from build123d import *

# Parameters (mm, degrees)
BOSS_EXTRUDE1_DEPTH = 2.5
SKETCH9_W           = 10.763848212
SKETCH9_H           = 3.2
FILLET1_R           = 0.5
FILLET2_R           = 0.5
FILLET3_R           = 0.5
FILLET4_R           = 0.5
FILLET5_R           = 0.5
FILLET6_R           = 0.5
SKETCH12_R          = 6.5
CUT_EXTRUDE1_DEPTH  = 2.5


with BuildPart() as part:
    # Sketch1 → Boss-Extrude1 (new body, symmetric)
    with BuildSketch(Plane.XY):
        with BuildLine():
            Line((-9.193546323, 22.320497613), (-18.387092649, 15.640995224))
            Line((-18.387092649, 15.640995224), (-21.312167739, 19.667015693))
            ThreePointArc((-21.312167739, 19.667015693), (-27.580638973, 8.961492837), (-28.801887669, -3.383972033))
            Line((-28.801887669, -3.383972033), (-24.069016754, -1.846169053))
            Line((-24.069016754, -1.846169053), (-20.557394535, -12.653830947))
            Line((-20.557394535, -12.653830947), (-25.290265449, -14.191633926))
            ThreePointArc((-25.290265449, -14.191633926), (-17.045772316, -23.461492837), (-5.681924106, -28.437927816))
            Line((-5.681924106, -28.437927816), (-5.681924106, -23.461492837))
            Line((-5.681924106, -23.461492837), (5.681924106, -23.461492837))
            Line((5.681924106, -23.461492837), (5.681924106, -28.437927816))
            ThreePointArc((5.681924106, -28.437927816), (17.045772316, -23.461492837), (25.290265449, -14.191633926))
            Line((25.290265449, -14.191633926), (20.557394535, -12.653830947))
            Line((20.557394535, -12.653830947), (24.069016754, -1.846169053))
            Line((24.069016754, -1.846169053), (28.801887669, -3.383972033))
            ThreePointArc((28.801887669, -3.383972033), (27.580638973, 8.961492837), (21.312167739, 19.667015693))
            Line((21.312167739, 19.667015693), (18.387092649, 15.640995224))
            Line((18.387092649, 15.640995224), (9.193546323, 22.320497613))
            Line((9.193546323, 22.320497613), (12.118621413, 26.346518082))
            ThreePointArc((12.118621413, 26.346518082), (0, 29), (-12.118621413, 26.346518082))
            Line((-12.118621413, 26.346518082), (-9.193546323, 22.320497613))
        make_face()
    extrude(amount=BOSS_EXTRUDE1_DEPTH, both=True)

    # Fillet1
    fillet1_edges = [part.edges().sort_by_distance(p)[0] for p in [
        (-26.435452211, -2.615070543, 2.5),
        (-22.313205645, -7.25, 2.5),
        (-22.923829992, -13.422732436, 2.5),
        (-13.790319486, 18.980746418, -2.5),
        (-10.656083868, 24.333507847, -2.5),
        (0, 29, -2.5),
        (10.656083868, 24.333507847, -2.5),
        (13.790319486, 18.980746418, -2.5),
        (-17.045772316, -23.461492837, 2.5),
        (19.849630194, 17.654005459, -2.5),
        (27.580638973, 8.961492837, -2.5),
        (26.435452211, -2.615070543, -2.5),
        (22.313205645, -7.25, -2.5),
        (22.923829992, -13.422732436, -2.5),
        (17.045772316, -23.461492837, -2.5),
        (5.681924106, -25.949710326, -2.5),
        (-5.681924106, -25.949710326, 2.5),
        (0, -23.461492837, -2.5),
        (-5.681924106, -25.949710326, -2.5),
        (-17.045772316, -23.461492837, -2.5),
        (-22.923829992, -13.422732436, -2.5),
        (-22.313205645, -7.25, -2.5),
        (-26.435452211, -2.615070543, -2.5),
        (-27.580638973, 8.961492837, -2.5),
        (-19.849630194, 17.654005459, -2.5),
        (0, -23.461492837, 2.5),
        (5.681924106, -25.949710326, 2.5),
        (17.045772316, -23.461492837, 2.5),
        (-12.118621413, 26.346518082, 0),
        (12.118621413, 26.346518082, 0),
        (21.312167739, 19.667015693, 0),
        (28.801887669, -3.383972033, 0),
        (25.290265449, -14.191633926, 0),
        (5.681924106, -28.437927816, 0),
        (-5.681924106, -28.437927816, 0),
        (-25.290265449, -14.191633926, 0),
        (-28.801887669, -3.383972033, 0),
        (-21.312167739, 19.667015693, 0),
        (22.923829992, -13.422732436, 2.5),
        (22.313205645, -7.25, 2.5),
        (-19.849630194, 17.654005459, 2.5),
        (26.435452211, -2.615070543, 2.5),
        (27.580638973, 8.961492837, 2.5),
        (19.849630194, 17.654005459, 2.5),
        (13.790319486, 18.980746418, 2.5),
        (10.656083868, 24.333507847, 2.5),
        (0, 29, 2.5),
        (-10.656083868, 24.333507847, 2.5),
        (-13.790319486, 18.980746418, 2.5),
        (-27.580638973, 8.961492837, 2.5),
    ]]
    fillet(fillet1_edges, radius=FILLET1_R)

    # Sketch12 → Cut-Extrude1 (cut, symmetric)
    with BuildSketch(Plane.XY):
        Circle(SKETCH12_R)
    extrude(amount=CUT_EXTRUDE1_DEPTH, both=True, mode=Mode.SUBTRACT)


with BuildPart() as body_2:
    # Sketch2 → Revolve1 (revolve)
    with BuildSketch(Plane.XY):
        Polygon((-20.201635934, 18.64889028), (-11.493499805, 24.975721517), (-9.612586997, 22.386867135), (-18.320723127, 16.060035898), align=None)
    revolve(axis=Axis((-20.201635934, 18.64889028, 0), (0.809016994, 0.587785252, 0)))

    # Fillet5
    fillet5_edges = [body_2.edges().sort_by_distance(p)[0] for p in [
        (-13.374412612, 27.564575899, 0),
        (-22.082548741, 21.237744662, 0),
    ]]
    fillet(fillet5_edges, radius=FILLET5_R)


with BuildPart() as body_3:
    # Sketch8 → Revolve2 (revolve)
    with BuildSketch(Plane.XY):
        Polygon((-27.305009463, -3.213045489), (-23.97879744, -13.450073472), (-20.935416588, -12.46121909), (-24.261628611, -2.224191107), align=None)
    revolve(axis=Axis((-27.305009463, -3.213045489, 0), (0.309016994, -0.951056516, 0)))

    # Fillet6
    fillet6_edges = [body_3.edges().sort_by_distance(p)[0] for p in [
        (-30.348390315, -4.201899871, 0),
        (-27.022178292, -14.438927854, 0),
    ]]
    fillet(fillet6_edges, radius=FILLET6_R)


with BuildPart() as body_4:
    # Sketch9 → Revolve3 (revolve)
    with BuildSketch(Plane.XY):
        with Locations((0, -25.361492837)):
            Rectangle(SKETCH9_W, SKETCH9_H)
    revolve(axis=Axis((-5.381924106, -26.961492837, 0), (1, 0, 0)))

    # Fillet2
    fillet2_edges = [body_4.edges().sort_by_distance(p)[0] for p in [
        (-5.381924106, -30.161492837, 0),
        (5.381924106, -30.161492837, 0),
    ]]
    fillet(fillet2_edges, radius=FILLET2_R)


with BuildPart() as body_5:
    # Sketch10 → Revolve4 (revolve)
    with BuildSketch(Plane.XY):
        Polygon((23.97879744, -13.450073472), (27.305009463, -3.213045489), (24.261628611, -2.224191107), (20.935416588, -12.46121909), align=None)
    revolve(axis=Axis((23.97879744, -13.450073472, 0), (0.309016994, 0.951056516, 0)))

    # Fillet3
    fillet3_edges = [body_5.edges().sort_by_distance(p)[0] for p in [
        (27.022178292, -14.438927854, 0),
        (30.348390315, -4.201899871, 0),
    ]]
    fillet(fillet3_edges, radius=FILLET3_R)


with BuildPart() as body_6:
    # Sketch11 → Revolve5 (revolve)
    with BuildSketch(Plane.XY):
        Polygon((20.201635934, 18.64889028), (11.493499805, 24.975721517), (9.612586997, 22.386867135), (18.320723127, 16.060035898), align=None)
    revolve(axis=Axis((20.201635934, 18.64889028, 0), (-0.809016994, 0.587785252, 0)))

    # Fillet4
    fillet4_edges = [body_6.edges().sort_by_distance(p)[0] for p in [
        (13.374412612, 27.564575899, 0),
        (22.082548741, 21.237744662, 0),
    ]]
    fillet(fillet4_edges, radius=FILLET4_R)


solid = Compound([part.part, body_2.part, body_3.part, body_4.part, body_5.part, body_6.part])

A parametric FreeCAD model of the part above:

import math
import FreeCAD as App
import Part
import Sketcher

V = App.Vector
Q = App.Units.Quantity


def edges_at(feature, points):
    """Names of the edges that pass closest to the given points."""
    edges = feature.Shape.Edges
    near = lambda p: min(range(len(edges)), key=lambda i: edges[i].distToShape(Part.Vertex(*p))[0])
    return sorted({f"Edge{near(p) + 1}" for p in points})

doc = App.newDocument("Part")
body = doc.addObject("PartDesign::Body", "Body")

sketch1 = doc.addObject("Sketcher::SketchObject", "Sketch")
body.addObject(sketch1)
sketch1.AttachmentSupport = (doc.XY_Plane, [""])
sketch1.MapMode = "FlatFace"
sketch1.addGeometry([
    Part.LineSegment(V(-9.2, 22.3, 0), V(-18.4, 15.6, 0)),
    Part.LineSegment(V(-18.4, 15.6, 0), V(-21.3, 19.7, 0)),
    Part.ArcOfCircle(Part.Circle(V(0, 0, 0), V(0, 0, 1), 29), math.radians(137), math.radians(187)),
    Part.LineSegment(V(-28.8, -3.4, 0), V(-24.1, -1.8, 0)),
    Part.LineSegment(V(-24.1, -1.8, 0), V(-20.6, -12.7, 0)),
    Part.LineSegment(V(-20.6, -12.7, 0), V(-25.3, -14.2, 0)),
    Part.ArcOfCircle(Part.Circle(V(0, 0, 0), V(0, 0, 1), 29), math.radians(-151), math.radians(-101)),
    Part.LineSegment(V(-5.7, -28.4, 0), V(-5.7, -23.5, 0)),
    Part.LineSegment(V(-5.7, -23.5, 0), V(5.7, -23.5, 0)),
    Part.LineSegment(V(5.7, -23.5, 0), V(5.7, -28.4, 0)),
    Part.ArcOfCircle(Part.Circle(V(0, 0, 0), V(0, 0, 1), 29), math.radians(-79), math.radians(-29)),
    Part.LineSegment(V(25.3, -14.2, 0), V(20.6, -12.7, 0)),
    Part.LineSegment(V(20.6, -12.7, 0), V(24.1, -1.8, 0)),
    Part.LineSegment(V(24.1, -1.8, 0), V(28.8, -3.4, 0)),
    Part.ArcOfCircle(Part.Circle(V(0, 0, 0), V(0, 0, 1), 29), math.radians(-7), math.radians(43)),
    Part.LineSegment(V(21.3, 19.7, 0), V(18.4, 15.6, 0)),
    Part.LineSegment(V(18.4, 15.6, 0), V(9.2, 22.3, 0)),
    Part.LineSegment(V(9.2, 22.3, 0), V(12.1, 26.3, 0)),
    Part.ArcOfCircle(Part.Circle(V(0, 0, 0), V(0, 0, 1), 29), math.radians(65), math.radians(115)),
    Part.LineSegment(V(-12.1, 26.3, 0), V(-9.2, 22.3, 0)),
], False)
sketch1.addConstraint([
    Sketcher.Constraint("Coincident", 0, 2, 1, 1),
    Sketcher.Constraint("Coincident", 1, 2, 2, 1),
    Sketcher.Constraint("Coincident", 2, 2, 3, 1),
    Sketcher.Constraint("Coincident", 3, 2, 4, 1),
    Sketcher.Constraint("Coincident", 4, 2, 5, 1),
    Sketcher.Constraint("Coincident", 5, 2, 6, 1),
    Sketcher.Constraint("Coincident", 6, 2, 7, 1),
    Sketcher.Constraint("Coincident", 7, 2, 8, 1),
    Sketcher.Constraint("Coincident", 8, 2, 9, 1),
    Sketcher.Constraint("Coincident", 9, 2, 10, 1),
    Sketcher.Constraint("Coincident", 10, 2, 11, 1),
    Sketcher.Constraint("Coincident", 11, 2, 12, 1),
    Sketcher.Constraint("Coincident", 12, 2, 13, 1),
    Sketcher.Constraint("Coincident", 13, 2, 14, 1),
    Sketcher.Constraint("Coincident", 14, 2, 15, 1),
    Sketcher.Constraint("Coincident", 15, 2, 16, 1),
    Sketcher.Constraint("Coincident", 16, 2, 17, 1),
    Sketcher.Constraint("Coincident", 17, 2, 18, 1),
    Sketcher.Constraint("Coincident", 18, 2, 19, 1),
    Sketcher.Constraint("Coincident", 19, 2, 0, 1),
    Sketcher.Constraint("Vertical", 7),
    Sketcher.Constraint("Horizontal", 8),
    Sketcher.Constraint("Vertical", 9),
    Sketcher.Constraint("Coincident", 2, 3, -1, 1),
    Sketcher.Constraint("Coincident", 6, 3, -1, 1),
    Sketcher.Constraint("Coincident", 10, 3, -1, 1),
    Sketcher.Constraint("Coincident", 14, 3, -1, 1),
    Sketcher.Constraint("Coincident", 18, 3, -1, 1),
    Sketcher.Constraint("Equal", 2, 6),
    Sketcher.Constraint("Equal", 6, 10),
    Sketcher.Constraint("Equal", 10, 14),
    Sketcher.Constraint("Equal", 14, 18),
    Sketcher.Constraint("Symmetric", 4, 2, 11, 2, -2),
    Sketcher.Constraint("Symmetric", 3, 2, 12, 2, -2),
    Sketcher.Constraint("Symmetric", 0, 2, 15, 2, -2),
    Sketcher.Constraint("Symmetric", 16, 2, 19, 2, -2),
    Sketcher.Constraint("Perpendicular", 0, 1),
    Sketcher.Constraint("Perpendicular", 3, 4),
    Sketcher.Constraint("Perpendicular", 4, 5),
    Sketcher.Constraint("Perpendicular", 11, 12),
    Sketcher.Constraint("Perpendicular", 12, 13),
    Sketcher.Constraint("Perpendicular", 15, 16),
    Sketcher.Constraint("Perpendicular", 16, 17),
    Sketcher.Constraint("Parallel", 1, 19),
    Sketcher.Constraint("Horizontal", 6, 2, 9, 2),
    Sketcher.Constraint("Equal", 1, 3),
    Sketcher.Constraint("Equal", 0, 4),
    Sketcher.Constraint("Equal", 3, 5),
    Sketcher.Constraint("Equal", 15, 17),
    Sketcher.Constraint("Radius", 2, Q("29 mm")),
    Sketcher.Constraint("Angle", 0, Q("-144 deg")),
    Sketcher.Constraint("Angle", 3, Q("18 deg")),
    Sketcher.Constraint("DistanceX", 8, 1, 8, 2, Q("11.363848 mm")),
    Sketcher.Constraint("Distance", 0, Q("11.363848 mm")),
    Sketcher.Constraint("DistanceY", 7, 1, 7, 2, Q("4.976435 mm")),
    Sketcher.Constraint("DistanceY", 3, 2, -1, 1, Q("1.846169 mm")),
])
pad1 = doc.addObject("PartDesign::Pad", "Pad")
body.addObject(pad1)
pad1.Profile = sketch1
pad1.Length = 5
pad1.Midplane = True
doc.recompute()

fillet = doc.addObject("PartDesign::Fillet", "Fillet")
body.addObject(fillet)
fillet.Base = (pad1, edges_at(pad1, [
    (-26.435, -2.615, 2.5),
    (-22.313, -7.25, 2.5),
    (-22.924, -13.423, 2.5),
    (-13.79, 18.981, -2.5),
    (-10.656, 24.334, -2.5),
    (0, 29, -2.5),
    (10.656, 24.334, -2.5),
    (13.79, 18.981, -2.5),
    (-17.046, -23.461, 2.5),
    (19.85, 17.654, -2.5),
    (27.581, 8.961, -2.5),
    (26.435, -2.615, -2.5),
    (22.313, -7.25, -2.5),
    (22.924, -13.423, -2.5),
    (17.046, -23.461, -2.5),
    (5.682, -25.95, -2.5),
    (-5.682, -25.95, 2.5),
    (0, -23.461, -2.5),
    (-5.682, -25.95, -2.5),
    (-17.046, -23.461, -2.5),
    (-22.924, -13.423, -2.5),
    (-22.313, -7.25, -2.5),
    (-26.435, -2.615, -2.5),
    (-27.581, 8.961, -2.5),
    (-19.85, 17.654, -2.5),
    (0, -23.461, 2.5),
    (5.682, -25.95, 2.5),
    (17.046, -23.461, 2.5),
    (-12.119, 26.347, 0),
    (12.119, 26.347, 0),
    (21.312, 19.667, 0),
    (28.802, -3.384, 0),
    (25.29, -14.192, 0),
    (5.682, -28.438, 0),
    (-5.682, -28.438, 0),
    (-25.29, -14.192, 0),
    (-28.802, -3.384, 0),
    (-21.312, 19.667, 0),
    (22.924, -13.423, 2.5),
    (22.313, -7.25, 2.5),
    (-19.85, 17.654, 2.5),
    (26.435, -2.615, 2.5),
    (27.581, 8.961, 2.5),
    (19.85, 17.654, 2.5),
    (13.79, 18.981, 2.5),
    (10.656, 24.334, 2.5),
    (0, 29, 2.5),
    (-10.656, 24.334, 2.5),
    (-13.79, 18.981, 2.5),
    (-27.581, 8.961, 2.5),
]))
fillet.Radius = 0.5

sketch2 = doc.addObject("Sketcher::SketchObject", "Sketch001")
body.addObject(sketch2)
sketch2.AttachmentSupport = (doc.XY_Plane, [""])
sketch2.MapMode = "FlatFace"
sketch2.addGeometry(Part.Circle(V(0, 0, 0), V(0, 0, 1), 6), False)
sketch2.addConstraint([
    Sketcher.Constraint("Coincident", 0, 3, -1, 1),
    Sketcher.Constraint("Diameter", 0, Q("13 mm")),
])
pocket1 = doc.addObject("PartDesign::Pocket", "Pocket")
body.addObject(pocket1)
pocket1.Profile = sketch2
pocket1.Length = 5
pocket1.Midplane = True
body2 = doc.addObject("PartDesign::Body", "Body001")

sketch3 = doc.addObject("Sketcher::SketchObject", "Sketch002")
body2.addObject(sketch3)
sketch3.AttachmentSupport = (doc.getObject("XY_Plane001"), [""])
sketch3.MapMode = "FlatFace"
sketch3.addGeometry([
    Part.LineSegment(V(-11.5, 25, 0), V(-20.2, 18.6, 0)),
    Part.LineSegment(V(-20.2, 18.6, 0), V(-18.3, 16.1, 0)),
    Part.LineSegment(V(-18.3, 16.1, 0), V(-9.6, 22.4, 0)),
    Part.LineSegment(V(-9.6, 22.4, 0), V(-11.5, 25, 0)),
], False)
sketch3.addGeometry(Part.LineSegment(V(-20.2, 18.6, 0), V(-11.5, 25, 0)), True)
sketch3.addConstraint([
    Sketcher.Constraint("Coincident", 0, 2, 1, 1),
    Sketcher.Constraint("Coincident", 1, 2, 2, 1),
    Sketcher.Constraint("Coincident", 2, 2, 3, 1),
    Sketcher.Constraint("Coincident", 3, 2, 0, 1),
    Sketcher.Constraint("Coincident", 4, 1, 0, 2),
    Sketcher.Constraint("Coincident", 4, 2, 3, 2),
    Sketcher.Constraint("Perpendicular", 0, 1),
    Sketcher.Constraint("Perpendicular", 1, 2),
    Sketcher.Constraint("Perpendicular", 2, 3),
    Sketcher.Constraint("Angle", 0, Q("-144 deg")),
    Sketcher.Constraint("Distance", 1, Q("3.2 mm")),
    Sketcher.Constraint("DistanceX", 3, 2, -1, 1, Q("11.4935 mm")),
    Sketcher.Constraint("Distance", 0, Q("10.763848 mm")),
    Sketcher.Constraint("DistanceY", -1, 1, 0, 2, Q("18.64889 mm")),
])
revolution = doc.addObject("PartDesign::Revolution", "Revolution")
body2.addObject(revolution)
revolution.Profile = sketch3
revolution.ReferenceAxis = (sketch3, ["Axis0"])
revolution.Angle = 360
doc.recompute()

fillet2 = doc.addObject("PartDesign::Fillet", "Fillet001")
body2.addObject(fillet2)
fillet2.Base = (revolution, edges_at(revolution, [(-13.374, 27.565, 0), (-22.083, 21.238, 0)]))
fillet2.Radius = 0.5
body3 = doc.addObject("PartDesign::Body", "Body002")

sketch4 = doc.addObject("Sketcher::SketchObject", "Sketch003")
body3.addObject(sketch4)
sketch4.AttachmentSupport = (doc.getObject("XY_Plane002"), [""])
sketch4.MapMode = "FlatFace"
sketch4.addGeometry([
    Part.LineSegment(V(-27.3, -3.2, 0), V(-24, -13.5, 0)),
    Part.LineSegment(V(-24, -13.5, 0), V(-20.9, -12.5, 0)),
    Part.LineSegment(V(-20.9, -12.5, 0), V(-24.3, -2.2, 0)),
    Part.LineSegment(V(-24.3, -2.2, 0), V(-27.3, -3.2, 0)),
], False)
sketch4.addGeometry(Part.LineSegment(V(-27.3, -3.2, 0), V(-24, -13.5, 0)), True)
sketch4.addConstraint([
    Sketcher.Constraint("Coincident", 0, 2, 1, 1),
    Sketcher.Constraint("Coincident", 1, 2, 2, 1),
    Sketcher.Constraint("Coincident", 2, 2, 3, 1),
    Sketcher.Constraint("Coincident", 3, 2, 0, 1),
    Sketcher.Constraint("Coincident", 4, 1, 3, 2),
    Sketcher.Constraint("Coincident", 4, 2, 0, 2),
    Sketcher.Constraint("Perpendicular", 0, 1),
    Sketcher.Constraint("Perpendicular", 1, 2),
    Sketcher.Constraint("Perpendicular", 2, 3),
    Sketcher.Constraint("Angle", 0, Q("-72 deg")),
    Sketcher.Constraint("Distance", 1, Q("3.2 mm")),
    Sketcher.Constraint("Distance", 0, Q("10.763848 mm")),
    Sketcher.Constraint("DistanceY", 1, 2, -1, 1, Q("12.461219 mm")),
    Sketcher.Constraint("DistanceX", 2, 2, -1, 1, Q("24.261629 mm")),
])
revolution2 = doc.addObject("PartDesign::Revolution", "Revolution001")
body3.addObject(revolution2)
revolution2.Profile = sketch4
revolution2.ReferenceAxis = (sketch4, ["Axis0"])
revolution2.Angle = 360
doc.recompute()

fillet3 = doc.addObject("PartDesign::Fillet", "Fillet002")
body3.addObject(fillet3)
fillet3.Base = (revolution2, edges_at(revolution2, [(-30.348, -4.202, 0), (-27.022, -14.439, 0)]))
fillet3.Radius = 0.5
body4 = doc.addObject("PartDesign::Body", "Body003")

sketch5 = doc.addObject("Sketcher::SketchObject", "Sketch004")
body4.addObject(sketch5)
sketch5.AttachmentSupport = (doc.getObject("XY_Plane003"), [""])
sketch5.MapMode = "FlatFace"
sketch5.addGeometry([
    Part.LineSegment(V(-5.4, -23.8, 0), V(-5.4, -27, 0)),
    Part.LineSegment(V(-5.4, -27, 0), V(5.4, -27, 0)),
    Part.LineSegment(V(5.4, -27, 0), V(5.4, -23.8, 0)),
    Part.LineSegment(V(5.4, -23.8, 0), V(-5.4, -23.8, 0)),
], False)
sketch5.addGeometry(Part.LineSegment(V(-5.4, -27, 0), V(5.4, -27, 0)), True)
sketch5.addConstraint([
    Sketcher.Constraint("Coincident", 0, 2, 1, 1),
    Sketcher.Constraint("Coincident", 1, 2, 2, 1),
    Sketcher.Constraint("Coincident", 2, 2, 3, 1),
    Sketcher.Constraint("Coincident", 3, 2, 0, 1),
    Sketcher.Constraint("Vertical", 0),
    Sketcher.Constraint("Horizontal", 1),
    Sketcher.Constraint("Vertical", 2),
    Sketcher.Constraint("Horizontal", 3),
    Sketcher.Constraint("Horizontal", 4),
    Sketcher.Constraint("Coincident", 4, 1, 0, 2),
    Sketcher.Constraint("Vertical", 2, 2, 4, 2),
    Sketcher.Constraint("DistanceY", 0, 2, 0, 1, Q("3.2 mm")),
    Sketcher.Constraint("DistanceX", 1, 1, 1, 2, Q("10.763848 mm")),
    Sketcher.Constraint("DistanceX", 0, 2, -1, 1, Q("5.381924 mm")),
    Sketcher.Constraint("DistanceY", 0, 2, -1, 1, Q("26.961493 mm")),
])
revolution3 = doc.addObject("PartDesign::Revolution", "Revolution002")
body4.addObject(revolution3)
revolution3.Profile = sketch5
revolution3.ReferenceAxis = (sketch5, ["Axis0"])
revolution3.Angle = 360
doc.recompute()

fillet4 = doc.addObject("PartDesign::Fillet", "Fillet003")
body4.addObject(fillet4)
fillet4.Base = (revolution3, edges_at(revolution3, [(-5.382, -30.161, 0), (5.382, -30.161, 0)]))
fillet4.Radius = 0.5
body5 = doc.addObject("PartDesign::Body", "Body004")

sketch6 = doc.addObject("Sketcher::SketchObject", "Sketch005")
body5.addObject(sketch6)
sketch6.AttachmentSupport = (doc.getObject("XY_Plane004"), [""])
sketch6.MapMode = "FlatFace"
sketch6.addGeometry([
    Part.LineSegment(V(24, -13.5, 0), V(27.3, -3.2, 0)),
    Part.LineSegment(V(27.3, -3.2, 0), V(24.3, -2.2, 0)),
    Part.LineSegment(V(24.3, -2.2, 0), V(20.9, -12.5, 0)),
    Part.LineSegment(V(20.9, -12.5, 0), V(24, -13.5, 0)),
], False)
sketch6.addGeometry(Part.LineSegment(V(24, -13.5, 0), V(27.3, -3.2, 0)), True)
sketch6.addConstraint([
    Sketcher.Constraint("Coincident", 0, 2, 1, 1),
    Sketcher.Constraint("Coincident", 1, 2, 2, 1),
    Sketcher.Constraint("Coincident", 2, 2, 3, 1),
    Sketcher.Constraint("Coincident", 3, 2, 0, 1),
    Sketcher.Constraint("Coincident", 4, 1, 3, 2),
    Sketcher.Constraint("Coincident", 4, 2, 0, 2),
    Sketcher.Constraint("Perpendicular", 0, 1),
    Sketcher.Constraint("Perpendicular", 1, 2),
    Sketcher.Constraint("Perpendicular", 2, 3),
    Sketcher.Constraint("Angle", 0, Q("72 deg")),
    Sketcher.Constraint("Distance", 1, Q("3.2 mm")),
    Sketcher.Constraint("Distance", 0, Q("10.763848 mm")),
    Sketcher.Constraint("DistanceX", -1, 1, 0, 2, Q("27.305009 mm")),
    Sketcher.Constraint("DistanceY", 1, 2, -1, 1, Q("2.224191 mm")),
])
revolution4 = doc.addObject("PartDesign::Revolution", "Revolution003")
body5.addObject(revolution4)
revolution4.Profile = sketch6
revolution4.ReferenceAxis = (sketch6, ["Axis0"])
revolution4.Angle = 360
doc.recompute()

fillet5 = doc.addObject("PartDesign::Fillet", "Fillet004")
body5.addObject(fillet5)
fillet5.Base = (revolution4, edges_at(revolution4, [(27.022, -14.439, 0), (30.348, -4.202, 0)]))
fillet5.Radius = 0.5
body6 = doc.addObject("PartDesign::Body", "Body005")

sketch7 = doc.addObject("Sketcher::SketchObject", "Sketch006")
body6.addObject(sketch7)
sketch7.AttachmentSupport = (doc.getObject("XY_Plane005"), [""])
sketch7.MapMode = "FlatFace"
sketch7.addGeometry([
    Part.LineSegment(V(20.2, 18.6, 0), V(11.5, 25, 0)),
    Part.LineSegment(V(11.5, 25, 0), V(9.6, 22.4, 0)),
    Part.LineSegment(V(9.6, 22.4, 0), V(18.3, 16.1, 0)),
    Part.LineSegment(V(18.3, 16.1, 0), V(20.2, 18.6, 0)),
], False)
sketch7.addGeometry(Part.LineSegment(V(20.2, 18.6, 0), V(11.5, 25, 0)), True)
sketch7.addConstraint([
    Sketcher.Constraint("Coincident", 0, 2, 1, 1),
    Sketcher.Constraint("Coincident", 1, 2, 2, 1),
    Sketcher.Constraint("Coincident", 2, 2, 3, 1),
    Sketcher.Constraint("Coincident", 3, 2, 0, 1),
    Sketcher.Constraint("Coincident", 4, 1, 3, 2),
    Sketcher.Constraint("Coincident", 4, 2, 0, 2),
    Sketcher.Constraint("Perpendicular", 0, 1),
    Sketcher.Constraint("Perpendicular", 1, 2),
    Sketcher.Constraint("Perpendicular", 2, 3),
    Sketcher.Constraint("Angle", 0, Q("144 deg")),
    Sketcher.Constraint("Distance", 1, Q("3.2 mm")),
    Sketcher.Constraint("DistanceX", -1, 1, 0, 2, Q("11.4935 mm")),
    Sketcher.Constraint("Distance", 0, Q("10.763848 mm")),
    Sketcher.Constraint("DistanceY", -1, 1, 0, 2, Q("24.975722 mm")),
])
revolution5 = doc.addObject("PartDesign::Revolution", "Revolution004")
body6.addObject(revolution5)
revolution5.Profile = sketch7
revolution5.ReferenceAxis = (sketch7, ["Axis0"])
revolution5.Angle = 360
doc.recompute()

fillet6 = doc.addObject("PartDesign::Fillet", "Fillet005")
body6.addObject(fillet6)
fillet6.Base = (revolution5, edges_at(revolution5, [(13.374, 27.565, 0), (22.083, 21.238, 0)]))
fillet6.Radius = 0.5

doc.recompute()
